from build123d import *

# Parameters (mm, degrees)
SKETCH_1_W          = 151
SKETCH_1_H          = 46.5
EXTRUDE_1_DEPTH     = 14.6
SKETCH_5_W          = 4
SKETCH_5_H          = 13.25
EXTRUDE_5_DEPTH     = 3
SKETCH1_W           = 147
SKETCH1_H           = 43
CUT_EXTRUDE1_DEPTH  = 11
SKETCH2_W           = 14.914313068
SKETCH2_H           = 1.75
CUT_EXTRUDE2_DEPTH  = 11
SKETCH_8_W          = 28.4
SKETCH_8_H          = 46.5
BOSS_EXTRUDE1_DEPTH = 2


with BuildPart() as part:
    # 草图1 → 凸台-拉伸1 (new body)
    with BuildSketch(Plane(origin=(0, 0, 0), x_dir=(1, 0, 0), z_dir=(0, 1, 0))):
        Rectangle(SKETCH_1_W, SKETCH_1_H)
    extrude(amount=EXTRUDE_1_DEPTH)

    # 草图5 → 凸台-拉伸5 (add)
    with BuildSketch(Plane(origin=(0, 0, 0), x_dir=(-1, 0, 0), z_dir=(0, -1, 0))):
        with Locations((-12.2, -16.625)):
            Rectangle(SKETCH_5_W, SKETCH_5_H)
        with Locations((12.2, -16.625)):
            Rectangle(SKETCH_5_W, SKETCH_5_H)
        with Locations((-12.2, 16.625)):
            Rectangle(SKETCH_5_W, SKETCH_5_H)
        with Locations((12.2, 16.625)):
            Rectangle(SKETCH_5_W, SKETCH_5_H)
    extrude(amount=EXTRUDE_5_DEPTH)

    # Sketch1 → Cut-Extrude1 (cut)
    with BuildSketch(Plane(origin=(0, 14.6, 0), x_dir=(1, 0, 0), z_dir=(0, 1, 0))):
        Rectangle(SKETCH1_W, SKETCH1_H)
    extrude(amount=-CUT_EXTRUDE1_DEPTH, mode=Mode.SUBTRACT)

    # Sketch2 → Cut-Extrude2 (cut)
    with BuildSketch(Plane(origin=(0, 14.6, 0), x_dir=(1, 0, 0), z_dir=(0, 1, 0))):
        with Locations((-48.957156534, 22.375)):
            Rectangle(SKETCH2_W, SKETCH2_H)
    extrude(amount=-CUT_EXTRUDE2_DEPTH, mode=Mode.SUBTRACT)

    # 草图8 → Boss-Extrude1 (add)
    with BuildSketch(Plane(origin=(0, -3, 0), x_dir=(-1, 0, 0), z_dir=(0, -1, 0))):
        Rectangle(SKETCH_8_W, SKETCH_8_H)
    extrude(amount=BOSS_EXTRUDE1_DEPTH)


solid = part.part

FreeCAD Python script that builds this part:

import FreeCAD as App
import Part
import Sketcher

doc = App.newDocument("Part")
params = doc.addObject("Spreadsheet::Sheet", "Params")
for row, (alias, value) in enumerate([
    ("sketch1_width", "151 mm"),
    ("sketch1_height", "46.5 mm"),
    ("pad1_length", "14.6 mm"),
    ("sketch2_width", "4 mm"),
    ("sketch2_height", "13.25 mm"),
    ("pad2_length", "3 mm"),
    ("sketch3_width", "147 mm"),
    ("sketch3_height", "43 mm"),
    ("pocket1_length", "11 mm"),
    ("sketch4_height", "1.75 mm"),
    ("pocket2_length", "11 mm"),
    ("sketch5_width", "28.4 mm"),
    ("sketch5_height", "46.5 mm"),
    ("pad3_length", "2 mm"),
], start=1):
    params.set(f"A{row}", alias)
    params.set(f"B{row}", "=" + value)
    params.setAlias(f"B{row}", alias)

body = doc.addObject("PartDesign::Body", "Body")

# Sketch on XZ plane
sketch1 = body.newObject("Sketcher::SketchObject", "Sketch")
sketch1.AttachmentSupport = (doc.getObject("XZ_Plane"), [""])
sketch1.MapMode = "FlatFace"
sketch1.addGeometry([
    Part.LineSegment(App.Vector(-76, -23, 0), App.Vector(-76, 23, 0)),
    Part.LineSegment(App.Vector(-76, 23, 0), App.Vector(76, 23, 0)),
    Part.LineSegment(App.Vector(76, 23, 0), App.Vector(76, -23, 0)),
    Part.LineSegment(App.Vector(76, -23, 0), App.Vector(-76, -23, 0)),
], False)
sketch1.addConstraint([
    Sketcher.Constraint("Coincident", 0, 2, 1, 1),
    Sketcher.Constraint("Coincident", 1, 2, 2, 1),
    Sketcher.Constraint("Coincident", 2, 2, 3, 1),
    Sketcher.Constraint("Coincident", 3, 2, 0, 1),
    Sketcher.Constraint("Vertical", 0),
    Sketcher.Constraint("Horizontal", 1),
    Sketcher.Constraint("Vertical", 2),
    Sketcher.Constraint("Horizontal", 3),
    Sketcher.Constraint("Symmetric", 0, 2, 2, 2, -1, 1),
    Sketcher.Constraint("DistanceX", 1, 1, 1, 2, 151.0),
    Sketcher.Constraint("DistanceY", 0, 1, 0, 2, 46.5),
])
sketch1.setExpression("Constraints[9]", "Params.sketch1_width")
sketch1.setExpression("Constraints[10]", "Params.sketch1_height")
pad1 = body.newObject("PartDesign::Pad", "Pad")
pad1.Profile = sketch1
pad1.setExpression("Length", "Params.pad1_length")
pad1.Reversed = True

# Sketch on XZ plane
sketch2 = body.newObject("Sketcher::SketchObject", "Sketch001")
sketch2.AttachmentSupport = (doc.getObject("XZ_Plane"), [""])
sketch2.MapMode = "FlatFace"
sketch2.addGeometry([
    Part.LineSegment(App.Vector(14.2, 10, 0), App.Vector(14.2, 23.2, 0)),  # 0
    Part.LineSegment(App.Vector(14.2, 23.2, 0), App.Vector(10.2, 23.2, 0)),  # 1
    Part.LineSegment(App.Vector(10.2, 23.2, 0), App.Vector(10.2, 10, 0)),  # 2
    Part.LineSegment(App.Vector(10.2, 10, 0), App.Vector(14.2, 10, 0)),  # 3
    Part.LineSegment(App.Vector(-10.2, 10, 0), App.Vector(-10.2, 23.2, 0)),  # 4
    Part.LineSegment(App.Vector(-10.2, 23.2, 0), App.Vector(-14.2, 23.2, 0)),  # 5
    Part.LineSegment(App.Vector(-14.2, 23.2, 0), App.Vector(-14.2, 10, 0)),  # 6
    Part.LineSegment(App.Vector(-14.2, 10, 0), App.Vector(-10.2, 10, 0)),  # 7
    Part.LineSegment(App.Vector(14.2, -23.2, 0), App.Vector(14.2, -10, 0)),  # 8
    Part.LineSegment(App.Vector(14.2, -10, 0), App.Vector(10.2, -10, 0)),  # 9
    Part.LineSegment(App.Vector(10.2, -10, 0), App.Vector(10.2, -23.2, 0)),  # 10
    Part.LineSegment(App.Vector(10.2, -23.2, 0), App.Vector(14.2, -23.2, 0)),  # 11
    Part.LineSegment(App.Vector(-10.2, -23.2, 0), App.Vector(-10.2, -10, 0)),  # 12
    Part.LineSegment(App.Vector(-10.2, -10, 0), App.Vector(-14.2, -10, 0)),  # 13
    Part.LineSegment(App.Vector(-14.2, -10, 0), App.Vector(-14.2, -23.2, 0)),  # 14
    Part.LineSegment(App.Vector(-14.2, -23.2, 0), App.Vector(-10.2, -23.2, 0)),  # 15
], False)
sketch2.addConstraint([
    Sketcher.Constraint("Coincident", 0, 2, 1, 1),
    Sketcher.Constraint("Coincident", 1, 2, 2, 1),
    Sketcher.Constraint("Coincident", 2, 2, 3, 1),
    Sketcher.Constraint("Coincident", 3, 2, 0, 1),
    Sketcher.Constraint("Coincident", 4, 2, 5, 1),
    Sketcher.Constraint("Coincident", 5, 2, 6, 1),
    Sketcher.Constraint("Coincident", 6, 2, 7, 1),
    Sketcher.Constraint("Coincident", 7, 2, 4, 1),
    Sketcher.Constraint("Coincident", 8, 2, 9, 1),
    Sketcher.Constraint("Coincident", 9, 2, 10, 1),
    Sketcher.Constraint("Coincident", 10, 2, 11, 1),
    Sketcher.Constraint("Coincident", 11, 2, 8, 1),
    Sketcher.Constraint("Coincident", 12, 2, 13, 1),
    Sketcher.Constraint("Coincident", 13, 2, 14, 1),
    Sketcher.Constraint("Coincident", 14, 2, 15, 1),
    Sketcher.Constraint("Coincident", 15, 2, 12, 1),
    Sketcher.Constraint("Vertical", 0),
    Sketcher.Constraint("Horizontal", 1),
    Sketcher.Constraint("Vertical", 2),
    Sketcher.Constraint("Horizontal", 3),
    Sketcher.Constraint("Vertical", 4),
    Sketcher.Constraint("Horizontal", 5),
    Sketcher.Constraint("Vertical", 6),
    Sketcher.Constraint("Horizontal", 7),
    Sketcher.Constraint("Vertical", 8),
    Sketcher.Constraint("Horizontal", 9),
    Sketcher.Constraint("Vertical", 10),
    Sketcher.Constraint("Horizontal", 11),
    Sketcher.Constraint("Vertical", 12),
    Sketcher.Constraint("Horizontal", 13),
    Sketcher.Constraint("Vertical", 14),
    Sketcher.Constraint("Horizontal", 15),
    Sketcher.Constraint("Symmetric", 6, 2, 8, 2, -1, 1),
    Sketcher.Constraint("Symmetric", 4, 2, 10, 2, -1, 1),
    Sketcher.Constraint("Symmetric", 2, 2, 12, 2, -1, 1),
    Sketcher.Constraint("Symmetric", 0, 2, 14, 2, -1, 1),
    Sketcher.Constraint("Symmetric", 1, 2, 4, 2, -2),
    Sketcher.Constraint("Symmetric", 3, 2, 6, 2, -2),
    Sketcher.Constraint("DistanceX", 1, 2, 1, 1, 4.0),
    Sketcher.Constraint("DistanceY", -1, 1, 2, 2, 10.0),
    Sketcher.Constraint("DistanceY", 0, 1, 0, 2, 13.25),
    Sketcher.Constraint("DistanceX", -1, 1, 0, 2, 14.2),
])
sketch2.setExpression("Constraints[38]", "Params.sketch2_width")
sketch2.setExpression("Constraints[40]", "Params.sketch2_height")
pad2 = body.newObject("PartDesign::Pad", "Pad001")
pad2.Profile = sketch2
pad2.setExpression("Length", "Params.pad2_length")

# Sketch on XZ plane
sketch3 = body.newObject("Sketcher::SketchObject", "Sketch002")
sketch3.AttachmentSupport = (doc.getObject("XZ_Plane"), [""])
sketch3.MapMode = "FlatFace"
sketch3.AttachmentOffset = App.Placement(App.Vector(0, 0, -14.6), App.Rotation())
sketch3.addGeometry([
    Part.LineSegment(App.Vector(-74, -22, 0), App.Vector(-74, 22, 0)),
    Part.LineSegment(App.Vector(-74, 22, 0), App.Vector(74, 22, 0)),
    Part.LineSegment(App.Vector(74, 22, 0), App.Vector(74, -22, 0)),
    Part.LineSegment(App.Vector(74, -22, 0), App.Vector(-74, -22, 0)),
], False)
sketch3.addConstraint([
    Sketcher.Constraint("Coincident", 0, 2, 1, 1),
    Sketcher.Constraint("Coincident", 1, 2, 2, 1),
    Sketcher.Constraint("Coincident", 2, 2, 3, 1),
    Sketcher.Constraint("Coincident", 3, 2, 0, 1),
    Sketcher.Constraint("Vertical", 0),
    Sketcher.Constraint("Horizontal", 1),
    Sketcher.Constraint("Vertical", 2),
    Sketcher.Constraint("Horizontal", 3),
    Sketcher.Constraint("Symmetric", 0, 2, 2, 2, -1, 1),
    Sketcher.Constraint("DistanceX", 1, 1, 1, 2, 147.0),
    Sketcher.Constraint("DistanceY", 0, 1, 0, 2, 43.0),
])
sketch3.setExpression("Constraints[9]", "Params.sketch3_width")
sketch3.setExpression("Constraints[10]", "Params.sketch3_height")
pocket1 = body.newObject("PartDesign::Pocket", "Pocket")
pocket1.Profile = sketch3
pocket1.setExpression("Length", "Params.pocket1_length")
pocket1.Reversed = True

# Sketch on XZ plane
sketch4 = body.newObject("Sketcher::SketchObject", "Sketch003")
sketch4.AttachmentSupport = (doc.getObject("XZ_Plane"), [""])
sketch4.MapMode = "FlatFace"
sketch4.AttachmentOffset = App.Placement(App.Vector(0, 0, -14.6), App.Rotation())
sketch4.addGeometry([
    Part.LineSegment(App.Vector(-56.4, -23.2, 0), App.Vector(-56.4, -21.5, 0)),
    Part.LineSegment(App.Vector(-56.4, -21.5, 0), App.Vector(-41.5, -21.5, 0)),
    Part.LineSegment(App.Vector(-41.5, -21.5, 0), App.Vector(-41.5, -23.2, 0)),
    Part.LineSegment(App.Vector(-41.5, -23.2, 0), App.Vector(-56.4, -23.2, 0)),
], False)
sketch4.addConstraint([
    Sketcher.Constraint("Coincident", 0, 2, 1, 1),
    Sketcher.Constraint("Coincident", 1, 2, 2, 1),
    Sketcher.Constraint("Coincident", 2, 2, 3, 1),
    Sketcher.Constraint("Coincident", 3, 2, 0, 1),
    Sketcher.Constraint("Vertical", 0),
    Sketcher.Constraint("Horizontal", 1),
    Sketcher.Constraint("Vertical", 2),
    Sketcher.Constraint("Horizontal", 3),
    Sketcher.Constraint("DistanceY", 0, 1, 0, 2, 1.75),
    Sketcher.Constraint("DistanceY", 0, 2, -1, 1, 21.5),
    Sketcher.Constraint("DistanceX", 1, 2, -1, 1, 41.5),
    Sketcher.Constraint("DistanceX", 1, 1, 1, 2, 14.914313),
])
sketch4.setExpression("Constraints[8]", "Params.sketch4_height")
pocket2 = body.newObject("PartDesign::Pocket", "Pocket001")
pocket2.Profile = sketch4
pocket2.setExpression("Length", "Params.pocket2_length")
pocket2.Reversed = True

# Sketch on XZ plane
sketch5 = body.newObject("Sketcher::SketchObject", "Sketch004")
sketch5.AttachmentSupport = (doc.getObject("XZ_Plane"), [""])
sketch5.MapMode = "FlatFace"
sketch5.AttachmentOffset = App.Placement(App.Vector(0, 0, 3), App.Rotation())
sketch5.addGeometry([
    Part.LineSegment(App.Vector(14, -23, 0), App.Vector(14, 23, 0)),
    Part.LineSegment(App.Vector(14, 23, 0), App.Vector(-14, 23, 0)),
    Part.LineSegment(App.Vector(-14, 23, 0), App.Vector(-14, -23, 0)),
    Part.LineSegment(App.Vector(-14, -23, 0), App.Vector(14, -23, 0)),
], False)
sketch5.addConstraint([
    Sketcher.Constraint("Coincident", 0, 2, 1, 1),
    Sketcher.Constraint("Coincident", 1, 2, 2, 1),
    Sketcher.Constraint("Coincident", 2, 2, 3, 1),
    Sketcher.Constraint("Coincident", 3, 2, 0, 1),
    Sketcher.Constraint("Vertical", 0),
    Sketcher.Constraint("Horizontal", 1),
    Sketcher.Constraint("Vertical", 2),
    Sketcher.Constraint("Horizontal", 3),
    Sketcher.Constraint("Symmetric", 0, 2, 2, 2, -1, 1),
    Sketcher.Constraint("DistanceX", 1, 2, 1, 1, 28.4),
    Sketcher.Constraint("DistanceY", 0, 1, 0, 2, 46.5),
])
sketch5.setExpression("Constraints[9]", "Params.sketch5_width")
sketch5.setExpression("Constraints[10]", "Params.sketch5_height")
pad3 = body.newObject("PartDesign::Pad", "Pad002")
pad3.Profile = sketch5
pad3.setExpression("Length", "Params.pad3_length")

doc.recompute()
